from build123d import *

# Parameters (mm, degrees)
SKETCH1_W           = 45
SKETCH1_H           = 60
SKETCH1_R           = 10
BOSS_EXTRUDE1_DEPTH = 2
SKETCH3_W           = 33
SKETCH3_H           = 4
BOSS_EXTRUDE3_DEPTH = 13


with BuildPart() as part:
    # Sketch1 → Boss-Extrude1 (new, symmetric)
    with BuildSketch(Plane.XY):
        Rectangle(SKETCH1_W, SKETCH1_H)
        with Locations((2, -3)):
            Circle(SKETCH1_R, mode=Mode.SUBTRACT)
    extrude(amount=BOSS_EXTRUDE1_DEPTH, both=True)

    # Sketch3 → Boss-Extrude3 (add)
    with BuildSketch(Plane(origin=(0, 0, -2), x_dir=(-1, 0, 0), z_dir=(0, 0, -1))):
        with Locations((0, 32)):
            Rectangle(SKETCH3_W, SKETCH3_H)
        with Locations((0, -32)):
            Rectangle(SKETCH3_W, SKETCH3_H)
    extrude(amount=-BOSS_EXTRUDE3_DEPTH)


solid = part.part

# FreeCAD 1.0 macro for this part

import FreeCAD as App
import Part
import Sketcher
from FreeCAD import Vector

doc = App.newDocument("Part")
params = doc.addObject("Spreadsheet::Sheet", "Params")
for row, (alias, value) in enumerate([
    ("sketch1_diameter", "20 mm"),
    ("sketch1_width", "45 mm"),
    ("sketch1_height", "60 mm"),
    ("pad1_length", "4 mm"),
    ("sketch2_width", "33 mm"),
    ("sketch2_height", "4 mm"),
    ("pad2_length", "13 mm"),
], start=1):
    params.set(f"A{row}", alias)
    params.set(f"B{row}", "=" + value)
    params.setAlias(f"B{row}", alias)

body = doc.addObject("PartDesign::Body", "Body")

# Sketch on XY plane
sketch1 = body.newObject("Sketcher::SketchObject", "Sketch")
sketch1.AttachmentSupport = (doc.getObject("XY_Plane"), [""])
sketch1.MapMode = "FlatFace"
sketch1.addGeometry([
    Part.LineSegment(Vector(-22, 30, 0), Vector(-22, -30, 0)),  # 0
    Part.LineSegment(Vector(-22, -30, 0), Vector(22, -30, 0)),  # 1
    Part.LineSegment(Vector(22, -30, 0), Vector(22, 30, 0)),  # 2
    Part.LineSegment(Vector(22, 30, 0), Vector(-22, 30, 0)),  # 3
    Part.Circle(Vector(2, -3, 0), Vector(0, 0, 1), 10),  # 4
], False)
sketch1.addConstraint([
    Sketcher.Constraint("Coincident", 0, 2, 1, 1),
    Sketcher.Constraint("Coincident", 1, 2, 2, 1),
    Sketcher.Constraint("Coincident", 2, 2, 3, 1),
    Sketcher.Constraint("Coincident", 3, 2, 0, 1),
    Sketcher.Constraint("Vertical", 0),
    Sketcher.Constraint("Horizontal", 1),
    Sketcher.Constraint("Vertical", 2),
    Sketcher.Constraint("Horizontal", 3),
    Sketcher.Constraint("Symmetric", 0, 2, 2, 2, -1, 1),
    Sketcher.Constraint("Diameter", 4, 20.0),
    Sketcher.Constraint("DistanceX", 1, 1, 1, 2, 45.0),
    Sketcher.Constraint("DistanceY", 0, 2, 0, 1, 60.0),
    Sketcher.Constraint("DistanceX", -1, 1, 4, 3, 2.0),
    Sketcher.Constraint("DistanceY", 4, 3, -1, 1, 3.0),
])
sketch1.setExpression("Constraints[9]", "Params.sketch1_diameter")
sketch1.setExpression("Constraints[10]", "Params.sketch1_width")
sketch1.setExpression("Constraints[11]", "Params.sketch1_height")
pad1 = body.newObject("PartDesign::Pad", "Pad")
pad1.Profile = sketch1
pad1.setExpression("Length", "Params.pad1_length")
pad1.Midplane = True

# Sketch on XY plane
sketch2 = body.newObject("Sketcher::SketchObject", "Sketch001")
sketch2.AttachmentSupport = (doc.getObject("XY_Plane"), [""])
sketch2.MapMode = "FlatFace"
sketch2.AttachmentOffset = App.Placement(Vector(0, 0, -2), App.Rotation())
sketch2.addGeometry([
    Part.LineSegment(Vector(16.5, 34, 0), Vector(16.5, 30, 0)),  # 0
    Part.LineSegment(Vector(16.5, 30, 0), Vector(-16.5, 30, 0)),  # 1
    Part.LineSegment(Vector(-16.5, 30, 0), Vector(-16.5, 34, 0)),  # 2
    Part.LineSegment(Vector(-16.5, 34, 0), Vector(16.5, 34, 0)),  # 3
    Part.LineSegment(Vector(16.5, -30, 0), Vector(16.5, -34, 0)),  # 4
    Part.LineSegment(Vector(16.5, -34, 0), Vector(-16.5, -34, 0)),  # 5
    Part.LineSegment(Vector(-16.5, -34, 0), Vector(-16.5, -30, 0)),  # 6
    Part.LineSegment(Vector(-16.5, -30, 0), Vector(16.5, -30, 0)),  # 7
], False)
sketch2.addConstraint([
    Sketcher.Constraint("Coincident", 0, 2, 1, 1),
    Sketcher.Constraint("Coincident", 1, 2, 2, 1),
    Sketcher.Constraint("Coincident", 2, 2, 3, 1),
    Sketcher.Constraint("Coincident", 3, 2, 0, 1),
    Sketcher.Constraint("Coincident", 4, 2, 5, 1),
    Sketcher.Constraint("Coincident", 5, 2, 6, 1),
    Sketcher.Constraint("Coincident", 6, 2, 7, 1),
    Sketcher.Constraint("Coincident", 7, 2, 4, 1),
    Sketcher.Constraint("Vertical", 0),
    Sketcher.Constraint("Horizontal", 1),
    Sketcher.Constraint("Vertical", 2),
    Sketcher.Constraint("Horizontal", 3),
    Sketcher.Constraint("Vertical", 4),
    Sketcher.Constraint("Horizontal", 5),
    Sketcher.Constraint("Vertical", 6),
    Sketcher.Constraint("Horizontal", 7),
    Sketcher.Constraint("Symmetric", 2, 2, 4, 2, -1, 1),
    Sketcher.Constraint("Symmetric", 0, 2, 6, 2, -1, 1),
    Sketcher.Constraint("Vertical", 3, 2, 4, 2),
    Sketcher.Constraint("DistanceX", 1, 2, 1, 1, 33.0),
    Sketcher.Constraint("DistanceY", 0, 2, 0, 1, 4.0),
    Sketcher.Constraint("DistanceY", -1, 1, 0, 2, 30.0),
])
sketch2.setExpression("Constraints[19]", "Params.sketch2_width")
sketch2.setExpression("Constraints[20]", "Params.sketch2_height")
pad2 = body.newObject("PartDesign::Pad", "Pad001")
pad2.Profile = sketch2
pad2.setExpression("Length", "Params.pad2_length")

doc.recompute()
